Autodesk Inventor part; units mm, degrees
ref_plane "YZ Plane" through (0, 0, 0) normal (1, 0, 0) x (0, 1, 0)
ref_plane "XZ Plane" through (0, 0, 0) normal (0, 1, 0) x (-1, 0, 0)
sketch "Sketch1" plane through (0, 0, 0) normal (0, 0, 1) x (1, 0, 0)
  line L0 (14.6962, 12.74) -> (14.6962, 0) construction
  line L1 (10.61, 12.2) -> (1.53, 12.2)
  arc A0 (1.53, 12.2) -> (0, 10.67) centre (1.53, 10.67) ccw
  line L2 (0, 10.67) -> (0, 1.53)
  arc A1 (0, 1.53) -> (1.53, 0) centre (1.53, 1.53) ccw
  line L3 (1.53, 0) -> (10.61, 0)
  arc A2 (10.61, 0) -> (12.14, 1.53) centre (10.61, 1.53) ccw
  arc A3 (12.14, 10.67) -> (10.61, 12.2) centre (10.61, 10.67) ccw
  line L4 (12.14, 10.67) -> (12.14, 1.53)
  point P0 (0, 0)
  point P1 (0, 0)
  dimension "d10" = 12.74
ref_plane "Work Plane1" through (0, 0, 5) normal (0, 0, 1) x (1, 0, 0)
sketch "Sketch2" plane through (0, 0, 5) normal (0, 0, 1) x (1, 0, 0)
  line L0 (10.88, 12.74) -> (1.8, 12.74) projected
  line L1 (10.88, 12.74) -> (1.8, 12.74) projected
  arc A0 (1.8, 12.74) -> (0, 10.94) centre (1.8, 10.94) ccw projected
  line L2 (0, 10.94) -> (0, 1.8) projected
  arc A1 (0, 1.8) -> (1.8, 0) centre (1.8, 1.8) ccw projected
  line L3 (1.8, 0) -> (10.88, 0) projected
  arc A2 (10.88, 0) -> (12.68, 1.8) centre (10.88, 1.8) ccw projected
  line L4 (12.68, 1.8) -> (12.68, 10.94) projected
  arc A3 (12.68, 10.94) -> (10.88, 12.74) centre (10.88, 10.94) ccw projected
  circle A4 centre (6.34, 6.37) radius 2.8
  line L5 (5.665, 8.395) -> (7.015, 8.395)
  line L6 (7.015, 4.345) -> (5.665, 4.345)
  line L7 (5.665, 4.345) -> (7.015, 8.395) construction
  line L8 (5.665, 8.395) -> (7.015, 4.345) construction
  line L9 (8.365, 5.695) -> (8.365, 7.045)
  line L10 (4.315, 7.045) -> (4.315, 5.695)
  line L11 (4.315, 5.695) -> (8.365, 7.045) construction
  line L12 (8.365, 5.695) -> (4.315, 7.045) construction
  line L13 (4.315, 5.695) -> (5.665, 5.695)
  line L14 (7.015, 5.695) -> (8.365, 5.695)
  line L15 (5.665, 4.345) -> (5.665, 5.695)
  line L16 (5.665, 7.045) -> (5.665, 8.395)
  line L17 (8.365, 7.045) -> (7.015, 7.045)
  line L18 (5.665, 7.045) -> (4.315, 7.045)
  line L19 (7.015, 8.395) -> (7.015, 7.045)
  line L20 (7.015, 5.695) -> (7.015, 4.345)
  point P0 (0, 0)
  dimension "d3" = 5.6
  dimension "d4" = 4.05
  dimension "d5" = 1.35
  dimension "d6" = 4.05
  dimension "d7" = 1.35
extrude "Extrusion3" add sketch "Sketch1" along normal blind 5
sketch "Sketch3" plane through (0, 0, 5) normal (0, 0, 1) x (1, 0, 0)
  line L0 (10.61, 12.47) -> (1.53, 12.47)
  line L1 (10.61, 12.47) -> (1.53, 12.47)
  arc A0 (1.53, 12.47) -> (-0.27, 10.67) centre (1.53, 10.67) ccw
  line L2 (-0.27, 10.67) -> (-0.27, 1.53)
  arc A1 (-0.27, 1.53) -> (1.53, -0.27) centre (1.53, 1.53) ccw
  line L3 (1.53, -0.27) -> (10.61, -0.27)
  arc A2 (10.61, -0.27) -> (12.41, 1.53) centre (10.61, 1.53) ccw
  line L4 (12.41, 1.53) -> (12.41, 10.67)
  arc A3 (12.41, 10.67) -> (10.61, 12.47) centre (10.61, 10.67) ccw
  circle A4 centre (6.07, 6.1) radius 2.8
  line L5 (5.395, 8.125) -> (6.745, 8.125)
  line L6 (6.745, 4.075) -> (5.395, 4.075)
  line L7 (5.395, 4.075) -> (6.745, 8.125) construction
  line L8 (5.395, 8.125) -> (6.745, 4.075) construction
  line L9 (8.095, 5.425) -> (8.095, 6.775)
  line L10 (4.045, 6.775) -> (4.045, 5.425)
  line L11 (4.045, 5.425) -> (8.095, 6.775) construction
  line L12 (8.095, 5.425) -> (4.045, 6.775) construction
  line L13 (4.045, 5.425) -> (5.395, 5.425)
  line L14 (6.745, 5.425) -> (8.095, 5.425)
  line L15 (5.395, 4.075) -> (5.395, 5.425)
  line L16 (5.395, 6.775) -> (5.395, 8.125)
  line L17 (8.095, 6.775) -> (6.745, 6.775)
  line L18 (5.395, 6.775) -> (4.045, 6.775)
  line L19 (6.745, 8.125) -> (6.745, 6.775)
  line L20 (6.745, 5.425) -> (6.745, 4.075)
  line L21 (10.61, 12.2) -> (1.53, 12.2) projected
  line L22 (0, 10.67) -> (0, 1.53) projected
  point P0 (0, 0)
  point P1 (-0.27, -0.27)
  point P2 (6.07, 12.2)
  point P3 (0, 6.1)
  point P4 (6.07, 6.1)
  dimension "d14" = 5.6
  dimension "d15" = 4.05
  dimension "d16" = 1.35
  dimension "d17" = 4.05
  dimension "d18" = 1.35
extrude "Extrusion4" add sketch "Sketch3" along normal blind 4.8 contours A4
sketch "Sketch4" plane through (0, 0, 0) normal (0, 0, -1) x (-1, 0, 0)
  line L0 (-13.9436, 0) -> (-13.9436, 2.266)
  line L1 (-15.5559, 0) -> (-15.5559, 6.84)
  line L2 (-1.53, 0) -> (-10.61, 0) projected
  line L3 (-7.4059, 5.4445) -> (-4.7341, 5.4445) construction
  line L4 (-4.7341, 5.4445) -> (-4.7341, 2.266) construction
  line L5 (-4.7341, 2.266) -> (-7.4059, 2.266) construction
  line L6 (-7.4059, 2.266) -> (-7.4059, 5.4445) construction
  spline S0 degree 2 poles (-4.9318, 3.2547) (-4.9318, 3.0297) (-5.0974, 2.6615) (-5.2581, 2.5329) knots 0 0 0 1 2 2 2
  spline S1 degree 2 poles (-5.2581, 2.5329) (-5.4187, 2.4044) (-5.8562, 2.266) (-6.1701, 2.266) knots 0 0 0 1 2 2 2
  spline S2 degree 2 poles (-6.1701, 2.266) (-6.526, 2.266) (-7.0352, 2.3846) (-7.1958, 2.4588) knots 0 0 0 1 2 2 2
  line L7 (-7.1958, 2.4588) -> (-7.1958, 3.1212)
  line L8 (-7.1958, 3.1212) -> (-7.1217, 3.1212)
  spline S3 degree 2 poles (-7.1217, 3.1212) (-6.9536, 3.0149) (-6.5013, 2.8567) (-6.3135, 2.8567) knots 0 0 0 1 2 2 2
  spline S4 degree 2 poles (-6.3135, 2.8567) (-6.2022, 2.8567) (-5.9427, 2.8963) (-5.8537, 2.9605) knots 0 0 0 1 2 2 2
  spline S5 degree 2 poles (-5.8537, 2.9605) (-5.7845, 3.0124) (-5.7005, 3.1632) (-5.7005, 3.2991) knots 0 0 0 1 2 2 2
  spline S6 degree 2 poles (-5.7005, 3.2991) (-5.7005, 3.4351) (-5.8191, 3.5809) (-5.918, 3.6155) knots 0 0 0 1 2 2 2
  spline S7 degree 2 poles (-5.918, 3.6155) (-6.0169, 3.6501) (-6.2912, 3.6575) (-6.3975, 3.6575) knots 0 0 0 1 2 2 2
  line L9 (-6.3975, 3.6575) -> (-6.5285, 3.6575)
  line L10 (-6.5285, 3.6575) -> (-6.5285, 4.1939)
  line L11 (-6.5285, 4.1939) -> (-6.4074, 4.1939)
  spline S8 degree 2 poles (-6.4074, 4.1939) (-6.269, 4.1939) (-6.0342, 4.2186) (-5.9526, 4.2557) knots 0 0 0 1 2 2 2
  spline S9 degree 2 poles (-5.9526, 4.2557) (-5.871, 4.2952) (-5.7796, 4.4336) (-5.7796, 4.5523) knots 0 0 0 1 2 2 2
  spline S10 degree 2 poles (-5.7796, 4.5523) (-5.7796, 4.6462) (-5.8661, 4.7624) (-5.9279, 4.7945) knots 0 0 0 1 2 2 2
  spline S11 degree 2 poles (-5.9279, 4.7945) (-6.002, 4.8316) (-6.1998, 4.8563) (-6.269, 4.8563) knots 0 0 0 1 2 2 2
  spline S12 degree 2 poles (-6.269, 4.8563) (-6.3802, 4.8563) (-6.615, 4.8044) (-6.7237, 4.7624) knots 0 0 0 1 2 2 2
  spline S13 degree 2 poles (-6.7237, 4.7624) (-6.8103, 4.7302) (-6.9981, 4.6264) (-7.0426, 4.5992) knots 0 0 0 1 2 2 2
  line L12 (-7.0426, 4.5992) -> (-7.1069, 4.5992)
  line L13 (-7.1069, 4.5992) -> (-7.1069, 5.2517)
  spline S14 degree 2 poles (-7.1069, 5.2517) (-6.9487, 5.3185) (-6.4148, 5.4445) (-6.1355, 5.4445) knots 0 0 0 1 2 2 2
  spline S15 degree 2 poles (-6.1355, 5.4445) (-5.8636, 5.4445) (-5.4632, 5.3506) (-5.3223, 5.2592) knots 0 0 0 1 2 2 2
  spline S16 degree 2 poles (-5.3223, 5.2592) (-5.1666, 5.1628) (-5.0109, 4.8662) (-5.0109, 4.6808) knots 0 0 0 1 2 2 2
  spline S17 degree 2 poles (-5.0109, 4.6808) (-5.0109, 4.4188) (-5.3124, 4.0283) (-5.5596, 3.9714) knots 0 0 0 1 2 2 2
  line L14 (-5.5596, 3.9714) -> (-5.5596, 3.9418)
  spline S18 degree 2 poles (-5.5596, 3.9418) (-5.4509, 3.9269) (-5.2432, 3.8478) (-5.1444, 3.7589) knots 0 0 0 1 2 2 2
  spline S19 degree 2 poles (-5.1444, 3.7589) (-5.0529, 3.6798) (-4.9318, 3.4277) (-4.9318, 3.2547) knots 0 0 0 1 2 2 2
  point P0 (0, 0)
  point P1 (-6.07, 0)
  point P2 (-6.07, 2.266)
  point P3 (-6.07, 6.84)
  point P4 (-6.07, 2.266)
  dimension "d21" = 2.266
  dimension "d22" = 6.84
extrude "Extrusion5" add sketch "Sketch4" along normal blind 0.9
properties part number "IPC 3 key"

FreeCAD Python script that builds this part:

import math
import FreeCAD as App
import Part
import Sketcher
from FreeCAD import Vector

doc = App.newDocument("Part")
body = doc.addObject("PartDesign::Body", "Body")

# Sketch on XY plane
sketch1 = body.newObject("Sketcher::SketchObject", "Sketch")
sketch1.AttachmentSupport = (doc.getObject("XY_Plane"), [""])
sketch1.MapMode = "FlatFace"
sketch1.addGeometry([
    Part.ArcOfCircle(Part.Circle(Vector(10.61, 10.67, 0), Vector(0, 0, 1), 1.53), math.radians(0), math.radians(90)),  # 0
    Part.LineSegment(Vector(10.61, 12.2, 0), Vector(1.53, 12.2, 0)),  # 1
    Part.ArcOfCircle(Part.Circle(Vector(1.53, 10.67, 0), Vector(0, 0, 1), 1.53), math.radians(90), math.radians(180)),  # 2
    Part.LineSegment(Vector(0, 10.67, 0), Vector(0, 1.53, 0)),  # 3
    Part.ArcOfCircle(Part.Circle(Vector(1.53, 1.53, 0), Vector(0, 0, 1), 1.53), math.radians(180), math.radians(270)),  # 4
    Part.LineSegment(Vector(1.53, 0, 0), Vector(10.61, 0, 0)),  # 5
    Part.ArcOfCircle(Part.Circle(Vector(10.61, 1.53, 0), Vector(0, 0, 1), 1.53), math.radians(-90), math.radians(0)),  # 6
    Part.LineSegment(Vector(12.14, 1.53, 0), Vector(12.14, 10.67, 0)),  # 7
], False)
sketch1.addConstraint([
    Sketcher.Constraint("Tangent", 0, 2, 1, 1),
    Sketcher.Constraint("Tangent", 1, 2, 2, 1),
    Sketcher.Constraint("Tangent", 2, 2, 3, 1),
    Sketcher.Constraint("Tangent", 3, 2, 4, 1),
    Sketcher.Constraint("Tangent", 4, 2, 5, 1),
    Sketcher.Constraint("Tangent", 5, 2, 6, 1),
    Sketcher.Constraint("Tangent", 6, 2, 7, 1),
    Sketcher.Constraint("Tangent", 7, 2, 0, 1),
    Sketcher.Constraint("Horizontal", 1),
    Sketcher.Constraint("Vertical", 3),
    Sketcher.Constraint("Horizontal", 5),
    Sketcher.Constraint("Vertical", 7),
    Sketcher.Constraint("Equal", 0, 2),
    Sketcher.Constraint("Equal", 2, 4),
    Sketcher.Constraint("Equal", 4, 6),
    Sketcher.Constraint("PointOnObject", 2, 2, -2),
    Sketcher.Constraint("PointOnObject", 4, 2, -1),
    Sketcher.Constraint("Radius", 0, 1.53),
    Sketcher.Constraint("DistanceX", 1, 2, 1, 1, 9.08),
    Sketcher.Constraint("DistanceY", 3, 2, 3, 1, 9.14),
])
pad1 = body.newObject("PartDesign::Pad", "Pad")
pad1.Profile = sketch1
pad1.Length = 5

# Sketch on XY plane
sketch2 = body.newObject("Sketcher::SketchObject", "Sketch001")
sketch2.AttachmentSupport = (doc.getObject("XY_Plane"), [""])
sketch2.MapMode = "FlatFace"
sketch2.AttachmentOffset = App.Placement(Vector(0, 0, 5), App.Rotation())
sketch2.addGeometry([
    Part.Circle(Vector(6.07, 6.1, 0), Vector(0, 0, 1), 2.8),  # 0
    Part.LineSegment(Vector(5.395, 6.775, 0), Vector(5.395, 8.125, 0)),  # 1
    Part.LineSegment(Vector(5.395, 8.125, 0), Vector(6.745, 8.125, 0)),  # 2
    Part.LineSegment(Vector(6.745, 8.125, 0), Vector(6.745, 6.775, 0)),  # 3
    Part.LineSegment(Vector(6.745, 6.775, 0), Vector(8.095, 6.775, 0)),  # 4
    Part.LineSegment(Vector(8.095, 6.775, 0), Vector(8.095, 5.425, 0)),  # 5
    Part.LineSegment(Vector(8.095, 5.425, 0), Vector(6.745, 5.425, 0)),  # 6
    Part.LineSegment(Vector(6.745, 5.425, 0), Vector(6.745, 4.075, 0)),  # 7
    Part.LineSegment(Vector(6.745, 4.075, 0), Vector(5.395, 4.075, 0)),  # 8
    Part.LineSegment(Vector(5.395, 4.075, 0), Vector(5.395, 5.425, 0)),  # 9
    Part.LineSegment(Vector(5.395, 5.425, 0), Vector(4.045, 5.425, 0)),  # 10
    Part.LineSegment(Vector(4.045, 5.425, 0), Vector(4.045, 6.775, 0)),  # 11
    Part.LineSegment(Vector(4.045, 6.775, 0), Vector(5.395, 6.775, 0)),  # 12
], False)
sketch2.addConstraint([
    Sketcher.Constraint("Coincident", 1, 2, 2, 1),
    Sketcher.Constraint("Coincident", 2, 2, 3, 1),
    Sketcher.Constraint("Coincident", 3, 2, 4, 1),
    Sketcher.Constraint("Coincident", 4, 2, 5, 1),
    Sketcher.Constraint("Coincident", 5, 2, 6, 1),
    Sketcher.Constraint("Coincident", 6, 2, 7, 1),
    Sketcher.Constraint("Coincident", 7, 2, 8, 1),
    Sketcher.Constraint("Coincident", 8, 2, 9, 1),
    Sketcher.Constraint("Coincident", 9, 2, 10, 1),
    Sketcher.Constraint("Coincident", 10, 2, 11, 1),
    Sketcher.Constraint("Coincident", 11, 2, 12, 1),
    Sketcher.Constraint("Coincident", 12, 2, 1, 1),
    Sketcher.Constraint("Vertical", 1),
    Sketcher.Constraint("Horizontal", 2),
    Sketcher.Constraint("Vertical", 3),
    Sketcher.Constraint("Horizontal", 4),
    Sketcher.Constraint("Vertical", 5),
    Sketcher.Constraint("Horizontal", 6),
    Sketcher.Constraint("Vertical", 7),
    Sketcher.Constraint("Horizontal", 8),
    Sketcher.Constraint("Vertical", 9),
    Sketcher.Constraint("Horizontal", 10),
    Sketcher.Constraint("Vertical", 11),
    Sketcher.Constraint("Horizontal", 12),
    Sketcher.Constraint("Horizontal", 6, 2, 9, 2),
    Sketcher.Constraint("Horizontal", 4, 2, 11, 2),
    Sketcher.Constraint("Vertical", 3, 2, 6, 2),
    Sketcher.Constraint("Vertical", 1, 2, 8, 2),
    Sketcher.Constraint("Equal", 2, 4),
    Sketcher.Constraint("Equal", 8, 10),
    Sketcher.Constraint("Equal", 12, 1),
    Sketcher.Constraint("Equal", 3, 5),
    Sketcher.Constraint("Equal", 5, 7),
    Sketcher.Constraint("Diameter", 0, 5.6),
    Sketcher.Constraint("DistanceX", 2, 1, 2, 2, 1.35),
    Sketcher.Constraint("DistanceY", -1, 1, 0, 3, 6.1),
    Sketcher.Constraint("DistanceX", -1, 1, 0, 3, 6.07),
    Sketcher.Constraint("DistanceX", -1, 1, 1, 2, 5.395),
    Sketcher.Constraint("DistanceY", -1, 1, 1, 2, 8.125),
])
pad2 = body.newObject("PartDesign::Pad", "Pad001")
pad2.Profile = sketch2
pad2.Length = 4.8

# Sketch on XY plane
sketch3 = body.newObject("Sketcher::SketchObject", "Sketch002")
sketch3.AttachmentSupport = (doc.getObject("XY_Plane"), [""])
sketch3.MapMode = "FlatFace"
sketch3.addGeometry([
    Part.BSplineCurve([Vector(4.9318, 3.2547, 0), Vector(4.9318, 3.0297, 0), Vector(5.0974, 2.6615, 0), Vector(5.2581, 2.5329, 0)], [3, 1, 3], [0, 1, 2], False, 2, [1, 1, 1, 1], False),  # 0
    Part.BSplineCurve([Vector(5.1444, 3.7589, 0), Vector(5.0529, 3.6798, 0), Vector(4.9318, 3.4277, 0), Vector(4.9318, 3.2547, 0)], [3, 1, 3], [0, 1, 2], False, 2, [1, 1, 1, 1], False),  # 1
    Part.BSplineCurve([Vector(5.5596, 3.9418, 0), Vector(5.4509, 3.9269, 0), Vector(5.2432, 3.8478, 0), Vector(5.1444, 3.7589, 0)], [3, 1, 3], [0, 1, 2], False, 2, [1, 1, 1, 1], False),  # 2
    Part.LineSegment(Vector(5.5596, 3.9418, 0), Vector(5.5596, 3.9714, 0)),  # 3
    Part.BSplineCurve([Vector(5.0109, 4.6808, 0), Vector(5.0109, 4.4188, 0), Vector(5.3124, 4.0283, 0), Vector(5.5596, 3.9714, 0)], [3, 1, 3], [0, 1, 2], False, 2, [1, 1, 1, 1], False),  # 4
    Part.BSplineCurve([Vector(5.3223, 5.2592, 0), Vector(5.1666, 5.1628, 0), Vector(5.0109, 4.8662, 0), Vector(5.0109, 4.6808, 0)], [3, 1, 3], [0, 1, 2], False, 2, [1, 1, 1, 1], False),  # 5
    Part.BSplineCurve([Vector(6.1355, 5.4445, 0), Vector(5.8636, 5.4445, 0), Vector(5.4632, 5.3506, 0), Vector(5.3223, 5.2592, 0)], [3, 1, 3], [0, 1, 2], False, 2, [1, 1, 1, 1], False),  # 6
    Part.BSplineCurve([Vector(7.1069, 5.2517, 0), Vector(6.9487, 5.3185, 0), Vector(6.4148, 5.4445, 0), Vector(6.1355, 5.4445, 0)], [3, 1, 3], [0, 1, 2], False, 2, [1, 1, 1, 1], False),  # 7
    Part.LineSegment(Vector(7.1069, 5.2517, 0), Vector(7.1069, 4.5992, 0)),  # 8
    Part.LineSegment(Vector(7.1069, 4.5992, 0), Vector(7.0426, 4.5992, 0)),  # 9
    Part.BSplineCurve([Vector(6.7237, 4.7624, 0), Vector(6.8103, 4.7302, 0), Vector(6.9981, 4.6264, 0), Vector(7.0426, 4.5992, 0)], [3, 1, 3], [0, 1, 2], False, 2, [1, 1, 1, 1], False),  # 10
    Part.BSplineCurve([Vector(6.269, 4.8563, 0), Vector(6.3802, 4.8563, 0), Vector(6.615, 4.8044, 0), Vector(6.7237, 4.7624, 0)], [3, 1, 3], [0, 1, 2], False, 2, [1, 1, 1, 1], False),  # 11
    Part.BSplineCurve([Vector(5.9279, 4.7945, 0), Vector(6.002, 4.8316, 0), Vector(6.1998, 4.8563, 0), Vector(6.269, 4.8563, 0)], [3, 1, 3], [0, 1, 2], False, 2, [1, 1, 1, 1], False),  # 12
    Part.BSplineCurve([Vector(5.7796, 4.5523, 0), Vector(5.7796, 4.6462, 0), Vector(5.8661, 4.7624, 0), Vector(5.9279, 4.7945, 0)], [3, 1, 3], [0, 1, 2], False, 2, [1, 1, 1, 1], False),  # 13
    Part.BSplineCurve([Vector(5.9526, 4.2557, 0), Vector(5.871, 4.2952, 0), Vector(5.7796, 4.4336, 0), Vector(5.7796, 4.5523, 0)], [3, 1, 3], [0, 1, 2], False, 2, [1, 1, 1, 1], False),  # 14
    Part.BSplineCurve([Vector(6.4074, 4.1939, 0), Vector(6.269, 4.1939, 0), Vector(6.0342, 4.2186, 0), Vector(5.9526, 4.2557, 0)], [3, 1, 3], [0, 1, 2], False, 2, [1, 1, 1, 1], False),  # 15
    Part.LineSegment(Vector(6.4074, 4.1939, 0), Vector(6.5285, 4.1939, 0)),  # 16
    Part.LineSegment(Vector(6.5285, 4.1939, 0), Vector(6.5285, 3.6575, 0)),  # 17
    Part.LineSegment(Vector(6.5285, 3.6575, 0), Vector(6.3975, 3.6575, 0)),  # 18
    Part.BSplineCurve([Vector(5.918, 3.6155, 0), Vector(6.0169, 3.6501, 0), Vector(6.2912, 3.6575, 0), Vector(6.3975, 3.6575, 0)], [3, 1, 3], [0, 1, 2], False, 2, [1, 1, 1, 1], False),  # 19
    Part.BSplineCurve([Vector(5.7005, 3.2991, 0), Vector(5.7005, 3.4351, 0), Vector(5.8191, 3.5809, 0), Vector(5.918, 3.6155, 0)], [3, 1, 3], [0, 1, 2], False, 2, [1, 1, 1, 1], False),  # 20
    Part.BSplineCurve([Vector(5.8537, 2.9605, 0), Vector(5.7845, 3.0124, 0), Vector(5.7005, 3.1632, 0), Vector(5.7005, 3.2991, 0)], [3, 1, 3], [0, 1, 2], False, 2, [1, 1, 1, 1], False),  # 21
    Part.BSplineCurve([Vector(6.3135, 2.8567, 0), Vector(6.2022, 2.8567, 0), Vector(5.9427, 2.8963, 0), Vector(5.8537, 2.9605, 0)], [3, 1, 3], [0, 1, 2], False, 2, [1, 1, 1, 1], False),  # 22
    Part.BSplineCurve([Vector(7.1217, 3.1212, 0), Vector(6.9536, 3.0149, 0), Vector(6.5013, 2.8567, 0), Vector(6.3135, 2.8567, 0)], [3, 1, 3], [0, 1, 2], False, 2, [1, 1, 1, 1], False),  # 23
    Part.LineSegment(Vector(7.1217, 3.1212, 0), Vector(7.1958, 3.1212, 0)),  # 24
    Part.LineSegment(Vector(7.1958, 3.1212, 0), Vector(7.1958, 2.4588, 0)),  # 25
    Part.BSplineCurve([Vector(6.1701, 2.266, 0), Vector(6.526, 2.266, 0), Vector(7.0352, 2.3846, 0), Vector(7.1958, 2.4588, 0)], [3, 1, 3], [0, 1, 2], False, 2, [1, 1, 1, 1], False),  # 26
    Part.BSplineCurve([Vector(5.2581, 2.5329, 0), Vector(5.4187, 2.4044, 0), Vector(5.8562, 2.266, 0), Vector(6.1701, 2.266, 0)], [3, 1, 3], [0, 1, 2], False, 2, [1, 1, 1, 1], False),  # 27
], False)
sketch3.addConstraint([
    Sketcher.Constraint("Block", 0),
    Sketcher.Constraint("Block", 1),
    Sketcher.Constraint("Block", 2),
    Sketcher.Constraint("Block", 4),
    Sketcher.Constraint("Block", 5),
    Sketcher.Constraint("Block", 6),
    Sketcher.Constraint("Block", 7),
    Sketcher.Constraint("Block", 10),
    Sketcher.Constraint("Block", 11),
    Sketcher.Constraint("Block", 12),
    Sketcher.Constraint("Block", 13),
    Sketcher.Constraint("Block", 14),
    Sketcher.Constraint("Block", 15),
    Sketcher.Constraint("Block", 19),
    Sketcher.Constraint("Block", 20),
    Sketcher.Constraint("Block", 21),
    Sketcher.Constraint("Block", 22),
    Sketcher.Constraint("Block", 23),
    Sketcher.Constraint("Block", 26),
    Sketcher.Constraint("Block", 27),
    Sketcher.Constraint("Coincident", 2, 1, 3, 1),
    Sketcher.Constraint("Coincident", 3, 2, 4, 2),
    Sketcher.Constraint("Coincident", 7, 1, 8, 1),
    Sketcher.Constraint("Coincident", 8, 2, 9, 1),
    Sketcher.Constraint("Coincident", 9, 2, 10, 2),
    Sketcher.Constraint("Coincident", 15, 1, 16, 1),
    Sketcher.Constraint("Coincident", 16, 2, 17, 1),
    Sketcher.Constraint("Coincident", 17, 2, 18, 1),
    Sketcher.Constraint("Coincident", 18, 2, 19, 2),
    Sketcher.Constraint("Coincident", 23, 1, 24, 1),
    Sketcher.Constraint("Coincident", 24, 2, 25, 1),
    Sketcher.Constraint("Coincident", 25, 2, 26, 2),
    Sketcher.Constraint("Vertical", 8),
    Sketcher.Constraint("Horizontal", 9),
    Sketcher.Constraint("Horizontal", 16),
    Sketcher.Constraint("Vertical", 17),
    Sketcher.Constraint("Horizontal", 18),
    Sketcher.Constraint("Horizontal", 24),
    Sketcher.Constraint("Vertical", 25),
    Sketcher.Constraint("DistanceX", 16, 1, 16, 2, 0.121),
])
pad3 = body.newObject("PartDesign::Pad", "Pad002")
pad3.Profile = sketch3
pad3.Length = 0.9
pad3.Reversed = True

doc.recompute()
